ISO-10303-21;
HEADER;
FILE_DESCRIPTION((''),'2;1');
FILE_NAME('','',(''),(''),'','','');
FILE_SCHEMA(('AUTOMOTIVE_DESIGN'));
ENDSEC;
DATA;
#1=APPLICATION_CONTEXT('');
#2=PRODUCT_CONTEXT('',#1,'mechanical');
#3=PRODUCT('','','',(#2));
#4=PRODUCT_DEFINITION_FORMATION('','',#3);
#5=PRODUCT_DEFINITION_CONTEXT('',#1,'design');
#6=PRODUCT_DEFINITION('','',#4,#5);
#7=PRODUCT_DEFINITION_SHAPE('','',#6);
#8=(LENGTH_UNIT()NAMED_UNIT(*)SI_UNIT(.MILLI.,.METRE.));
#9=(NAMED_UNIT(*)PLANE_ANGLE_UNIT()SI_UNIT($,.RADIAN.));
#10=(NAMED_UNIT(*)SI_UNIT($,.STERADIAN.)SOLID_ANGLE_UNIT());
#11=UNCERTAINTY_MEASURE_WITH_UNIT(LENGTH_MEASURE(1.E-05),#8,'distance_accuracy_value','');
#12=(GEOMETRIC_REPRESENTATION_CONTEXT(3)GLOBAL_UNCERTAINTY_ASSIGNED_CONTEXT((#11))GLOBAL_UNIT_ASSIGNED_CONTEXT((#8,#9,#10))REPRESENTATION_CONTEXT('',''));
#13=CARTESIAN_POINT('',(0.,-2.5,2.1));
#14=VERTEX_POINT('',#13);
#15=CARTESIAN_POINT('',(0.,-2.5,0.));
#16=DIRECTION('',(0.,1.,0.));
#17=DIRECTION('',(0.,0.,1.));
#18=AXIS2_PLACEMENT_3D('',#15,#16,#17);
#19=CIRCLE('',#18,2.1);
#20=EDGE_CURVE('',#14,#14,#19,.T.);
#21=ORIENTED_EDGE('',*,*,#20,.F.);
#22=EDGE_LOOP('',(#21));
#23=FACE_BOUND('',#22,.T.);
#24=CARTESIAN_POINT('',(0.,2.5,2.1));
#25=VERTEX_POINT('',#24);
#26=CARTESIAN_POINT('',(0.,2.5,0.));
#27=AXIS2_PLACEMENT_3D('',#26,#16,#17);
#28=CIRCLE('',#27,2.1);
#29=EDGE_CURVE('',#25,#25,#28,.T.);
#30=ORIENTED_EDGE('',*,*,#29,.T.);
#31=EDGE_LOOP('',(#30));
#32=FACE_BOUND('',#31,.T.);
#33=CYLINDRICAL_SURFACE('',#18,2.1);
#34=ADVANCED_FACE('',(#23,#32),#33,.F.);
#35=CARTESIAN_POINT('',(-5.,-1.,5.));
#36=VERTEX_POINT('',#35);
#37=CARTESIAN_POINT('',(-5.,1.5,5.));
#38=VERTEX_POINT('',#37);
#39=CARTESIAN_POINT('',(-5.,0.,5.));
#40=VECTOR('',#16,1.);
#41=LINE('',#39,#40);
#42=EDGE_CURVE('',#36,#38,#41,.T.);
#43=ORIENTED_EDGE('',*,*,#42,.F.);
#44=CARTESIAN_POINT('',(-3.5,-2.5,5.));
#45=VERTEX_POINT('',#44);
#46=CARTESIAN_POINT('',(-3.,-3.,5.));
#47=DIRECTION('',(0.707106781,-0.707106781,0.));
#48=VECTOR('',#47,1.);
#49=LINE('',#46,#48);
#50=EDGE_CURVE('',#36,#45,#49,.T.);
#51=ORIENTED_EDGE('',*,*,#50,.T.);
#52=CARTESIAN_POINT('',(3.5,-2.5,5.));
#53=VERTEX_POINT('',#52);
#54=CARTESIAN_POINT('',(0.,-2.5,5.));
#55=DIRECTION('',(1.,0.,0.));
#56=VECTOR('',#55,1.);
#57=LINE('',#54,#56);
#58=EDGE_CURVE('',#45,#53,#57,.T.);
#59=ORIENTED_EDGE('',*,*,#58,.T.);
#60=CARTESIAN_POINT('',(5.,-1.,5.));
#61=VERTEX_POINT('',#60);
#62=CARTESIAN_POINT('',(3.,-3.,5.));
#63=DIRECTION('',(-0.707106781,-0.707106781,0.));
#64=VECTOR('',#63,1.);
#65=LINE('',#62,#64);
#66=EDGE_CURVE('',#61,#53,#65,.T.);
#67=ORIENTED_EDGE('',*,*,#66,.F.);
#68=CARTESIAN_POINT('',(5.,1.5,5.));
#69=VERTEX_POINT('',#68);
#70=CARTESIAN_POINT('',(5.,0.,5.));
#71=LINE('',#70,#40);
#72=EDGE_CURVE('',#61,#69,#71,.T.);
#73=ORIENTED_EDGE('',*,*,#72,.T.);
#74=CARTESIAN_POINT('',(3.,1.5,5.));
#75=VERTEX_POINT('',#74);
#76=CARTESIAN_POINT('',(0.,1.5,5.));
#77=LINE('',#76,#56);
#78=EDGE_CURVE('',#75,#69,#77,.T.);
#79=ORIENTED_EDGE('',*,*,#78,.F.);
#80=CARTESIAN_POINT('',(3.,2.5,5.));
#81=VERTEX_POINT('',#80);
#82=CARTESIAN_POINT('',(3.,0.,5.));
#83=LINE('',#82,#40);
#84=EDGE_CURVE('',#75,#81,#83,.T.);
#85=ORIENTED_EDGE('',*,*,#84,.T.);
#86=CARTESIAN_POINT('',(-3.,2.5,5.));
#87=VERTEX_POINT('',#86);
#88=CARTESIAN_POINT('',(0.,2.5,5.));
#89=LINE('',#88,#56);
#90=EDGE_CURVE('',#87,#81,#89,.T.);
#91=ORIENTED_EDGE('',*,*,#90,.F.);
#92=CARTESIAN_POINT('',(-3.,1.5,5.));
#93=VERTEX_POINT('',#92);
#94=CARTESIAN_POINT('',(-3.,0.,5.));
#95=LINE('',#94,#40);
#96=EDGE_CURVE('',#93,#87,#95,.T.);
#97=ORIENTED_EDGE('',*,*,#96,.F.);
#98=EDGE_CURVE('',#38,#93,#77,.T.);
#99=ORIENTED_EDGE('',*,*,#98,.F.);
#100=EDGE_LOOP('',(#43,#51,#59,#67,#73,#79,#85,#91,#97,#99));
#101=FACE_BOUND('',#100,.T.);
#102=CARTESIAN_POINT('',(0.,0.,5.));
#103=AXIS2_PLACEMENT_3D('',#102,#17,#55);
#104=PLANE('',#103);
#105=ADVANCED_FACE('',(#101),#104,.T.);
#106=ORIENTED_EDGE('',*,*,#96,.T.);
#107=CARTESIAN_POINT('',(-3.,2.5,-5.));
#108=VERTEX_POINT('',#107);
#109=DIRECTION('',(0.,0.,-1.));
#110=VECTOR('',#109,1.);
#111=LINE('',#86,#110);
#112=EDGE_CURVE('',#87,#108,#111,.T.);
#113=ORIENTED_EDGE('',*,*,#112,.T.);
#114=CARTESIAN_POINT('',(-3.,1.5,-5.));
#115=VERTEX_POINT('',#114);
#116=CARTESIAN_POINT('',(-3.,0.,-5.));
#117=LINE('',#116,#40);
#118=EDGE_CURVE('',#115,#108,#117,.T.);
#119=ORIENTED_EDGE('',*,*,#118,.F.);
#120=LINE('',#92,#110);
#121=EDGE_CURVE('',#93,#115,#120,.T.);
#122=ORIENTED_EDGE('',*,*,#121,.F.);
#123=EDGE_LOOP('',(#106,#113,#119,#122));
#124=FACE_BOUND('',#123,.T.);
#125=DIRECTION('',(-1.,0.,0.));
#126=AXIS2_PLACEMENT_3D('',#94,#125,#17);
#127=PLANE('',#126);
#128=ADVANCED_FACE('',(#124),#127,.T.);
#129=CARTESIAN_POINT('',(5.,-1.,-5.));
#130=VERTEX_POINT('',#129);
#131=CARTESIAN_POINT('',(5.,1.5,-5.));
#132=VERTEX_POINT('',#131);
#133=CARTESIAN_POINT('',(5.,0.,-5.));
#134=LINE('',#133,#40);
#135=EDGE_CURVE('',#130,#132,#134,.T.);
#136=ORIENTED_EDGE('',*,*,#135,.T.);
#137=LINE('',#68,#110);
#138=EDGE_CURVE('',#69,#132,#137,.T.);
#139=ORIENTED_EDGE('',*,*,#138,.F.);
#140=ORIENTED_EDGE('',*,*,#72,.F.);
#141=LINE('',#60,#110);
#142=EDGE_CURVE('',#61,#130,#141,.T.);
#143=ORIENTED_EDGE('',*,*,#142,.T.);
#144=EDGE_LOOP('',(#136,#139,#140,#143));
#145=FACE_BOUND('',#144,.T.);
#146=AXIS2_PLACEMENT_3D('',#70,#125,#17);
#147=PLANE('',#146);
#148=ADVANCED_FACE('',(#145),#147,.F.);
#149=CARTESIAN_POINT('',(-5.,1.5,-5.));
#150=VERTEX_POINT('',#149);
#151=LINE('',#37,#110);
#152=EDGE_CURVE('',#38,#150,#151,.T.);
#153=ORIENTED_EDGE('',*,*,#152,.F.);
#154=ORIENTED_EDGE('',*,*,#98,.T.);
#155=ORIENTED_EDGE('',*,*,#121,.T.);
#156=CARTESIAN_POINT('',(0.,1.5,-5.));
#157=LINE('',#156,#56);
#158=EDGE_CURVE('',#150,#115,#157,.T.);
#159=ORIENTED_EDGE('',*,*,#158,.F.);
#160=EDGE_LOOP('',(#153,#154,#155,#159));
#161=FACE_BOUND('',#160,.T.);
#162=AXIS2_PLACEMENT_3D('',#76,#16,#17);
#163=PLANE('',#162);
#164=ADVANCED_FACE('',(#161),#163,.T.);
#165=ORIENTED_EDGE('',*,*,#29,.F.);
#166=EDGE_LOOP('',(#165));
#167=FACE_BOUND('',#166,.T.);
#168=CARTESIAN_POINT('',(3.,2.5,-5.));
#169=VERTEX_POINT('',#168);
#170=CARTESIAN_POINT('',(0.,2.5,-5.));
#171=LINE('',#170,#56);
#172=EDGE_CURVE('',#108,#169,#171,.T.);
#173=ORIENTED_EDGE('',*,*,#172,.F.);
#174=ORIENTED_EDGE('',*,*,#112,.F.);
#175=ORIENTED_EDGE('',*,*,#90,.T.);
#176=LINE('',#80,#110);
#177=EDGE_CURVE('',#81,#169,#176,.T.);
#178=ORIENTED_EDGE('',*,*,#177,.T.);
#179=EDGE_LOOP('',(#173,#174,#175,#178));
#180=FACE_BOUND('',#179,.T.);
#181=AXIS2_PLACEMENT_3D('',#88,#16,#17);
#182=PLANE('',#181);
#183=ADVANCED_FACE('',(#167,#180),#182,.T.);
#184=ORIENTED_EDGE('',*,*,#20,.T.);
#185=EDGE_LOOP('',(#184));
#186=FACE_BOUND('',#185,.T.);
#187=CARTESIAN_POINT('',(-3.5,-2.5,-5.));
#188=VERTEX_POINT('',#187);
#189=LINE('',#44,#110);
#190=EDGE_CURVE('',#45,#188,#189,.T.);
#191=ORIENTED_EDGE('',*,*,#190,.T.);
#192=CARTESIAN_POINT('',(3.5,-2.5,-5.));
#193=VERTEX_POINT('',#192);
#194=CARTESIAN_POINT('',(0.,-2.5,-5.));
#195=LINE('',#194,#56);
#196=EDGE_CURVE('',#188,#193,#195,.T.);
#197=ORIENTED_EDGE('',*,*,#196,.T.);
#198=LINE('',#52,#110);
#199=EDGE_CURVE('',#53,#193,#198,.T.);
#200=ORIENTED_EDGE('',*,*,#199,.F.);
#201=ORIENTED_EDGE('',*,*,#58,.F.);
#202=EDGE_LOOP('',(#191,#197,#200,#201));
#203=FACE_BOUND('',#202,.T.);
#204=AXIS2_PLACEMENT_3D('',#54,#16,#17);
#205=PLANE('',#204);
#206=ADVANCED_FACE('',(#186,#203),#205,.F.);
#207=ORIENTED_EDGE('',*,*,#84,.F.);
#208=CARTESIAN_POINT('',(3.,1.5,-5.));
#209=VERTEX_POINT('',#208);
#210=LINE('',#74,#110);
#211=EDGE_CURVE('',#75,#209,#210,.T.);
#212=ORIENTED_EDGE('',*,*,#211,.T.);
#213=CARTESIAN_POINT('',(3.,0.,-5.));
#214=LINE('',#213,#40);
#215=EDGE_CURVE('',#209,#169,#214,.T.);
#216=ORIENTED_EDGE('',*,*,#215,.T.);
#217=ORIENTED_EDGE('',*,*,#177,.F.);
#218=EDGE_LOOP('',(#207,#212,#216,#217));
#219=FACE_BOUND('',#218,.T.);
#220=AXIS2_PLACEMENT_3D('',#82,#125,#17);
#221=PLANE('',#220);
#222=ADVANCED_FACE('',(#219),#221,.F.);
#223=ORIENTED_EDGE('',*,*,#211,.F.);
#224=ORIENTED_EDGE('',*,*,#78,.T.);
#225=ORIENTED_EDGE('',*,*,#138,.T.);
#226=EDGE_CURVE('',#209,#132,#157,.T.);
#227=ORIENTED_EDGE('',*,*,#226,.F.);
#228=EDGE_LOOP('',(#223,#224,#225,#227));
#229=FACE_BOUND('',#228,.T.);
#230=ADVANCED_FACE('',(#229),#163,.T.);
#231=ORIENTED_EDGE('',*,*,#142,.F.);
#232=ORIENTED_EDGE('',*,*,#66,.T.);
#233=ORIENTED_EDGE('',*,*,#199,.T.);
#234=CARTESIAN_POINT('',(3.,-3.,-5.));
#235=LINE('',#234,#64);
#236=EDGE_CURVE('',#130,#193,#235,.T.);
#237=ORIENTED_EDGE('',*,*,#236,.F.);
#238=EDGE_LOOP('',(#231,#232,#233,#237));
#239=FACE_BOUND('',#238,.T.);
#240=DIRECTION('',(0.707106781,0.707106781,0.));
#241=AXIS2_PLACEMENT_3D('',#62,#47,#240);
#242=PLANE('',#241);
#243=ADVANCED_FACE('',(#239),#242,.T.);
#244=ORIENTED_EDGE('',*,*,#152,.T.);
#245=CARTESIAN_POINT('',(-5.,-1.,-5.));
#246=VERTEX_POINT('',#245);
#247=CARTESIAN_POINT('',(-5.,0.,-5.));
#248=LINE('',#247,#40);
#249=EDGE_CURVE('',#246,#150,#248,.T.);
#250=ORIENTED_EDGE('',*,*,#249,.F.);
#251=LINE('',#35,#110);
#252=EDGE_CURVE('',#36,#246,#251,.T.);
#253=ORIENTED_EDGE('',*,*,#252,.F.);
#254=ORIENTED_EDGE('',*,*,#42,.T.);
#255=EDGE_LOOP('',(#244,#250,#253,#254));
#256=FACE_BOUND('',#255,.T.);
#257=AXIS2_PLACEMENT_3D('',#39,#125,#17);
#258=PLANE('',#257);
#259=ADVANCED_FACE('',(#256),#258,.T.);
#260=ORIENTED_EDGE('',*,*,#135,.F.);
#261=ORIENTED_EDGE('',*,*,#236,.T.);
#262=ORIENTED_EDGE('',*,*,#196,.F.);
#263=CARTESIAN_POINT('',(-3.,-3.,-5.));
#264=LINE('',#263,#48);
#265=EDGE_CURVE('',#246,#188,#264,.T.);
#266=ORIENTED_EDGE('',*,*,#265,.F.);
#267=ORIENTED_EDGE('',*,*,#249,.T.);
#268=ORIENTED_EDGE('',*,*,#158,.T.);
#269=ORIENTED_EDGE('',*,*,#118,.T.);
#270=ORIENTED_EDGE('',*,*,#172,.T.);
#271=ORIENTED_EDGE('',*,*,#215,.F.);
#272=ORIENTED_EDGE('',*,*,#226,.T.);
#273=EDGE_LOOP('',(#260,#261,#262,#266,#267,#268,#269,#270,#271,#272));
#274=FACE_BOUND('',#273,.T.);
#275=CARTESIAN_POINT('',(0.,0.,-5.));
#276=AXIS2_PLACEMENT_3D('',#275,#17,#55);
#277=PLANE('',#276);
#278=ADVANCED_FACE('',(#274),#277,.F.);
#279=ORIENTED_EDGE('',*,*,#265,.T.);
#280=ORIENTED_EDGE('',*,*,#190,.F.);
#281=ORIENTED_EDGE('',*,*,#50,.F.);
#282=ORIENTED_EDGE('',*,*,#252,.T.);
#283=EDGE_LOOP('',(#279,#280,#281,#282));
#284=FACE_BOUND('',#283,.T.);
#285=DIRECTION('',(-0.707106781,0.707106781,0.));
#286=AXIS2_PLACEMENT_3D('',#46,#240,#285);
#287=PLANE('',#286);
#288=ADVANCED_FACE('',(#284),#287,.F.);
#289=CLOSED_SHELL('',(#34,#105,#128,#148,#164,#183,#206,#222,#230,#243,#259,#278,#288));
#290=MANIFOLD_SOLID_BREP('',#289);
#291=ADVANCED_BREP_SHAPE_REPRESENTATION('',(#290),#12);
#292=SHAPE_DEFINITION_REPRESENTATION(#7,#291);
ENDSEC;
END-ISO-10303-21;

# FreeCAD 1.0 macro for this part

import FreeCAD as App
import Part
import Sketcher

V = App.Vector

doc = App.newDocument("Part")
body = doc.addObject("PartDesign::Body", "Body")

# Sketch on XY plane
sketch1 = doc.addObject("Sketcher::SketchObject", "Sketch")
body.addObject(sketch1)
sketch1.AttachmentSupport = (doc.XY_Plane, [""])
sketch1.MapMode = "FlatFace"
sketch1.addGeometry([
    Part.LineSegment(V(-5, 1.5, 0), V(-5, -1, 0)),  # 0
    Part.LineSegment(V(-5, -1, 0), V(-3.5, -2.5, 0)),  # 1
    Part.LineSegment(V(-3.5, -2.5, 0), V(3.5, -2.5, 0)),  # 2
    Part.LineSegment(V(3.5, -2.5, 0), V(5, -1, 0)),  # 3
    Part.LineSegment(V(5, -1, 0), V(5, 1.5, 0)),  # 4
    Part.LineSegment(V(5, 1.5, 0), V(3, 1.5, 0)),  # 5
    Part.LineSegment(V(3, 1.5, 0), V(3, 2.5, 0)),  # 6
    Part.LineSegment(V(3, 2.5, 0), V(-3, 2.5, 0)),  # 7
    Part.LineSegment(V(-3, 2.5, 0), V(-3, 1.5, 0)),  # 8
    Part.LineSegment(V(-3, 1.5, 0), V(-5, 1.5, 0)),  # 9
], False)
sketch1.addConstraint([
    Sketcher.Constraint("Coincident", 0, 2, 1, 1),
    Sketcher.Constraint("Coincident", 1, 2, 2, 1),
    Sketcher.Constraint("Coincident", 2, 2, 3, 1),
    Sketcher.Constraint("Coincident", 3, 2, 4, 1),
    Sketcher.Constraint("Coincident", 4, 2, 5, 1),
    Sketcher.Constraint("Coincident", 5, 2, 6, 1),
    Sketcher.Constraint("Coincident", 6, 2, 7, 1),
    Sketcher.Constraint("Coincident", 7, 2, 8, 1),
    Sketcher.Constraint("Coincident", 8, 2, 9, 1),
    Sketcher.Constraint("Coincident", 9, 2, 0, 1),
    Sketcher.Constraint("Vertical", 0),
    Sketcher.Constraint("Horizontal", 2),
    Sketcher.Constraint("Vertical", 4),
    Sketcher.Constraint("Horizontal", 5),
    Sketcher.Constraint("Vertical", 6),
    Sketcher.Constraint("Horizontal", 7),
    Sketcher.Constraint("Vertical", 8),
    Sketcher.Constraint("Horizontal", 9),
    Sketcher.Constraint("Symmetric", 0, 2, 3, 2, -2),
    Sketcher.Constraint("Symmetric", 5, 2, 8, 2, -2),
    Sketcher.Constraint("Perpendicular", 1, 3),
    Sketcher.Constraint("Equal", 1, 3),
    Sketcher.Constraint("DistanceX", 2, 1, 2, 2, 7.0),
    Sketcher.Constraint("DistanceX", 5, 2, 5, 1, 2.0),
    Sketcher.Constraint("DistanceX", 7, 2, 7, 1, 6.0),
    Sketcher.Constraint("DistanceY", 6, 1, 6, 2, 1.0),
    Sketcher.Constraint("DistanceY", 0, 2, 0, 1, 2.5),
    Sketcher.Constraint("DistanceY", 0, 2, -1, 1, 1.0),
])
pad1 = doc.addObject("PartDesign::Pad", "Pad")
body.addObject(pad1)
pad1.Profile = sketch1
pad1.Length = 10
pad1.Midplane = True

# Sketch on XZ plane
sketch2 = doc.addObject("Sketcher::SketchObject", "Sketch001")
body.addObject(sketch2)
sketch2.AttachmentSupport = (doc.XZ_Plane, [""])
sketch2.MapMode = "FlatFace"
sketch2.AttachmentOffset = App.Placement(V(0, 0, -2.5), App.Rotation())
sketch2.addGeometry(Part.Circle(V(0, 0, 0), V(0, 0, 1), 2.1), False)
sketch2.addConstraint([
    Sketcher.Constraint("Coincident", 0, 3, -1, 1),
    Sketcher.Constraint("Diameter", 0, 4.2),
])
pocket1 = doc.addObject("PartDesign::Pocket", "Pocket")
body.addObject(pocket1)
pocket1.Profile = sketch2
pocket1.Type = "ThroughAll"
pocket1.Reversed = True

doc.recompute()
